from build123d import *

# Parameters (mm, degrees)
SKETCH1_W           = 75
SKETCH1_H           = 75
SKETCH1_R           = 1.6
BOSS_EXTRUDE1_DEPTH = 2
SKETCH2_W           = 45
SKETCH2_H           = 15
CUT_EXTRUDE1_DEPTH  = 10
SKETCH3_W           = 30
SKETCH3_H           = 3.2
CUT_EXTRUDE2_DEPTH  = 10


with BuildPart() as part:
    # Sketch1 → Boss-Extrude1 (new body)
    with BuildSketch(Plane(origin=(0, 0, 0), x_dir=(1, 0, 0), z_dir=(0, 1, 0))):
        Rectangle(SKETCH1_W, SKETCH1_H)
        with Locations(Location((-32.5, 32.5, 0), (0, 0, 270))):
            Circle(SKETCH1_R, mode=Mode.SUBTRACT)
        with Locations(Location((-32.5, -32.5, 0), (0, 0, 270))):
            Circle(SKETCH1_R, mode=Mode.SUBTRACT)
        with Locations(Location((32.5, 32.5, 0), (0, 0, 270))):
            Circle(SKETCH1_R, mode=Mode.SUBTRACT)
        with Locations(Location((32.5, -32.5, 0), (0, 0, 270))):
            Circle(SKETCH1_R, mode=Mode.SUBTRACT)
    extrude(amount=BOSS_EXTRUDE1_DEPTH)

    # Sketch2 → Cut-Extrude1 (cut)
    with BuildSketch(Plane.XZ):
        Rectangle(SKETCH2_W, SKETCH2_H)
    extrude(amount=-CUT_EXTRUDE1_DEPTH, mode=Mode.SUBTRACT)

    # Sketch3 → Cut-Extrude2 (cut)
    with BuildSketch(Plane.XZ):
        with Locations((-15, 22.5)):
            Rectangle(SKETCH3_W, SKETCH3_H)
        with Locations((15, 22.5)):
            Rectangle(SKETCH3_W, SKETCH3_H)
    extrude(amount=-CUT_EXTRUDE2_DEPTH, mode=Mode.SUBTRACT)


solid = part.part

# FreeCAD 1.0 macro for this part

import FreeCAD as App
import Part
import Sketcher


def add_polygon(sketch, points):
    """Adds a closed chain of lines whose ends are joined by coincident constraints."""
    first, n = sketch.GeometryCount, len(points)
    for a, b in zip(points, points[1:] + points[:1]):
        sketch.addGeometry(Part.LineSegment(App.Vector(*a, 0), App.Vector(*b, 0)), False)
    for i in range(n):
        sketch.addConstraint(Sketcher.Constraint("Coincident", first + i, 2, first + (i + 1) % n, 1))

doc = App.newDocument("Part")
params = doc.addObject("Spreadsheet::Sheet", "Params")
for row, (alias, value) in enumerate([
    ("sketch1_diameter", "3.2 mm"),
    ("sketch1_width", "75 mm"),
    ("pad1_length", "2 mm"),
    ("sketch2_width", "45 mm"),
    ("sketch2_height", "15 mm"),
    ("pocket1_length", "10 mm"),
    ("sketch3_width", "60 mm"),
    ("sketch3_height", "3.2 mm"),
    ("pocket2_length", "10 mm"),
], start=1):
    params.set(f"A{row}", alias)
    params.set(f"B{row}", "=" + value)
    params.setAlias(f"B{row}", alias)

body = doc.addObject("PartDesign::Body", "Body")

# Sketch on XZ plane
sketch1 = body.newObject("Sketcher::SketchObject", "Sketch")
sketch1.AttachmentSupport = (doc.getObject("XZ_Plane"), [""])
sketch1.MapMode = "FlatFace"
add_polygon(sketch1, [(-37.5, -37.5), (-37.5, 37.5), (37.5, 37.5), (37.5, -37.5)])  # lines 0-3
sketch1.addGeometry(Part.Circle(App.Vector(-32.5, 32.5, 0), App.Vector(0, 0, 1), 1.6), False)  # 4
sketch1.addGeometry(Part.Circle(App.Vector(32.5, 32.5, 0), App.Vector(0, 0, 1), 1.6), False)  # 5
sketch1.addGeometry(Part.Circle(App.Vector(-32.5, -32.5, 0), App.Vector(0, 0, 1), 1.6), False)  # 6
sketch1.addGeometry(Part.Circle(App.Vector(32.5, -32.5, 0), App.Vector(0, 0, 1), 1.6), False)  # 7
sketch1.addConstraint([
    Sketcher.Constraint("Vertical", 0),
    Sketcher.Constraint("Horizontal", 1),
    Sketcher.Constraint("Vertical", 2),
    Sketcher.Constraint("Horizontal", 3),
    Sketcher.Constraint("Equal", 4, 5),
    Sketcher.Constraint("Equal", 5, 6),
    Sketcher.Constraint("Equal", 6, 7),
    Sketcher.Constraint("Symmetric", 5, 3, 6, 3, -1, 1),
    Sketcher.Constraint("Symmetric", 4, 3, 7, 3, -1, 1),
    Sketcher.Constraint("Symmetric", 0, 2, 2, 2, -1, 1),
    Sketcher.Constraint("Symmetric", 4, 3, 5, 3, -2),
    Sketcher.Constraint("Equal", 3, 0),
    Sketcher.Constraint("Diameter", 4, 3.2),
    Sketcher.Constraint("DistanceX", 1, 1, 1, 2, 75.0),
    Sketcher.Constraint("DistanceX", 4, 3, 5, 3, 65.0),
    Sketcher.Constraint("DistanceY", 6, 3, 4, 3, 65.0),
])
sketch1.setExpression("Constraints[16]", "Params.sketch1_diameter")
sketch1.setExpression("Constraints[17]", "Params.sketch1_width")
pad1 = body.newObject("PartDesign::Pad", "Pad")
pad1.Profile = sketch1
pad1.setExpression("Length", "Params.pad1_length")
pad1.Reversed = True

# Sketch on XZ plane
sketch2 = body.newObject("Sketcher::SketchObject", "Sketch001")
sketch2.AttachmentSupport = (doc.getObject("XZ_Plane"), [""])
sketch2.MapMode = "FlatFace"
add_polygon(sketch2, [(-22, 8), (-22, -8), (22, -8), (22, 8)])  # lines 0-3
sketch2.addConstraint([
    Sketcher.Constraint("Vertical", 0),
    Sketcher.Constraint("Horizontal", 1),
    Sketcher.Constraint("Vertical", 2),
    Sketcher.Constraint("Horizontal", 3),
    Sketcher.Constraint("Symmetric", 0, 2, 2, 2, -1, 1),
    Sketcher.Constraint("DistanceX", 1, 1, 1, 2, 45.0),
    Sketcher.Constraint("DistanceY", 0, 2, 0, 1, 15.0),
])
sketch2.setExpression("Constraints[9]", "Params.sketch2_width")
sketch2.setExpression("Constraints[10]", "Params.sketch2_height")
pocket1 = body.newObject("PartDesign::Pocket", "Pocket")
pocket1.Profile = sketch2
pocket1.setExpression("Length", "Params.pocket1_length")

# Sketch on XZ plane
sketch3 = body.newObject("Sketcher::SketchObject", "Sketch002")
sketch3.AttachmentSupport = (doc.getObject("XZ_Plane"), [""])
sketch3.MapMode = "FlatFace"
add_polygon(sketch3, [(-30, 24.1), (-30, 20.9), (30, 20.9), (30, 24.1)])  # lines 0-3
sketch3.addConstraint([
    Sketcher.Constraint("Vertical", 0),
    Sketcher.Constraint("Horizontal", 1),
    Sketcher.Constraint("Vertical", 2),
    Sketcher.Constraint("Horizontal", 3),
    Sketcher.Constraint("DistanceX", 1, 1, 1, 2, 60.0),
    Sketcher.Constraint("DistanceY", 0, 2, 0, 1, 3.2),
    Sketcher.Constraint("DistanceX", 0, 2, -1, 1, 30.0),
    Sketcher.Constraint("DistanceY", -1, 1, 0, 2, 20.9),
])
sketch3.setExpression("Constraints[8]", "Params.sketch3_width")
sketch3.setExpression("Constraints[9]", "Params.sketch3_height")
pocket2 = body.newObject("PartDesign::Pocket", "Pocket001")
pocket2.Profile = sketch3
pocket2.setExpression("Length", "Params.pocket2_length")

doc.recompute()
